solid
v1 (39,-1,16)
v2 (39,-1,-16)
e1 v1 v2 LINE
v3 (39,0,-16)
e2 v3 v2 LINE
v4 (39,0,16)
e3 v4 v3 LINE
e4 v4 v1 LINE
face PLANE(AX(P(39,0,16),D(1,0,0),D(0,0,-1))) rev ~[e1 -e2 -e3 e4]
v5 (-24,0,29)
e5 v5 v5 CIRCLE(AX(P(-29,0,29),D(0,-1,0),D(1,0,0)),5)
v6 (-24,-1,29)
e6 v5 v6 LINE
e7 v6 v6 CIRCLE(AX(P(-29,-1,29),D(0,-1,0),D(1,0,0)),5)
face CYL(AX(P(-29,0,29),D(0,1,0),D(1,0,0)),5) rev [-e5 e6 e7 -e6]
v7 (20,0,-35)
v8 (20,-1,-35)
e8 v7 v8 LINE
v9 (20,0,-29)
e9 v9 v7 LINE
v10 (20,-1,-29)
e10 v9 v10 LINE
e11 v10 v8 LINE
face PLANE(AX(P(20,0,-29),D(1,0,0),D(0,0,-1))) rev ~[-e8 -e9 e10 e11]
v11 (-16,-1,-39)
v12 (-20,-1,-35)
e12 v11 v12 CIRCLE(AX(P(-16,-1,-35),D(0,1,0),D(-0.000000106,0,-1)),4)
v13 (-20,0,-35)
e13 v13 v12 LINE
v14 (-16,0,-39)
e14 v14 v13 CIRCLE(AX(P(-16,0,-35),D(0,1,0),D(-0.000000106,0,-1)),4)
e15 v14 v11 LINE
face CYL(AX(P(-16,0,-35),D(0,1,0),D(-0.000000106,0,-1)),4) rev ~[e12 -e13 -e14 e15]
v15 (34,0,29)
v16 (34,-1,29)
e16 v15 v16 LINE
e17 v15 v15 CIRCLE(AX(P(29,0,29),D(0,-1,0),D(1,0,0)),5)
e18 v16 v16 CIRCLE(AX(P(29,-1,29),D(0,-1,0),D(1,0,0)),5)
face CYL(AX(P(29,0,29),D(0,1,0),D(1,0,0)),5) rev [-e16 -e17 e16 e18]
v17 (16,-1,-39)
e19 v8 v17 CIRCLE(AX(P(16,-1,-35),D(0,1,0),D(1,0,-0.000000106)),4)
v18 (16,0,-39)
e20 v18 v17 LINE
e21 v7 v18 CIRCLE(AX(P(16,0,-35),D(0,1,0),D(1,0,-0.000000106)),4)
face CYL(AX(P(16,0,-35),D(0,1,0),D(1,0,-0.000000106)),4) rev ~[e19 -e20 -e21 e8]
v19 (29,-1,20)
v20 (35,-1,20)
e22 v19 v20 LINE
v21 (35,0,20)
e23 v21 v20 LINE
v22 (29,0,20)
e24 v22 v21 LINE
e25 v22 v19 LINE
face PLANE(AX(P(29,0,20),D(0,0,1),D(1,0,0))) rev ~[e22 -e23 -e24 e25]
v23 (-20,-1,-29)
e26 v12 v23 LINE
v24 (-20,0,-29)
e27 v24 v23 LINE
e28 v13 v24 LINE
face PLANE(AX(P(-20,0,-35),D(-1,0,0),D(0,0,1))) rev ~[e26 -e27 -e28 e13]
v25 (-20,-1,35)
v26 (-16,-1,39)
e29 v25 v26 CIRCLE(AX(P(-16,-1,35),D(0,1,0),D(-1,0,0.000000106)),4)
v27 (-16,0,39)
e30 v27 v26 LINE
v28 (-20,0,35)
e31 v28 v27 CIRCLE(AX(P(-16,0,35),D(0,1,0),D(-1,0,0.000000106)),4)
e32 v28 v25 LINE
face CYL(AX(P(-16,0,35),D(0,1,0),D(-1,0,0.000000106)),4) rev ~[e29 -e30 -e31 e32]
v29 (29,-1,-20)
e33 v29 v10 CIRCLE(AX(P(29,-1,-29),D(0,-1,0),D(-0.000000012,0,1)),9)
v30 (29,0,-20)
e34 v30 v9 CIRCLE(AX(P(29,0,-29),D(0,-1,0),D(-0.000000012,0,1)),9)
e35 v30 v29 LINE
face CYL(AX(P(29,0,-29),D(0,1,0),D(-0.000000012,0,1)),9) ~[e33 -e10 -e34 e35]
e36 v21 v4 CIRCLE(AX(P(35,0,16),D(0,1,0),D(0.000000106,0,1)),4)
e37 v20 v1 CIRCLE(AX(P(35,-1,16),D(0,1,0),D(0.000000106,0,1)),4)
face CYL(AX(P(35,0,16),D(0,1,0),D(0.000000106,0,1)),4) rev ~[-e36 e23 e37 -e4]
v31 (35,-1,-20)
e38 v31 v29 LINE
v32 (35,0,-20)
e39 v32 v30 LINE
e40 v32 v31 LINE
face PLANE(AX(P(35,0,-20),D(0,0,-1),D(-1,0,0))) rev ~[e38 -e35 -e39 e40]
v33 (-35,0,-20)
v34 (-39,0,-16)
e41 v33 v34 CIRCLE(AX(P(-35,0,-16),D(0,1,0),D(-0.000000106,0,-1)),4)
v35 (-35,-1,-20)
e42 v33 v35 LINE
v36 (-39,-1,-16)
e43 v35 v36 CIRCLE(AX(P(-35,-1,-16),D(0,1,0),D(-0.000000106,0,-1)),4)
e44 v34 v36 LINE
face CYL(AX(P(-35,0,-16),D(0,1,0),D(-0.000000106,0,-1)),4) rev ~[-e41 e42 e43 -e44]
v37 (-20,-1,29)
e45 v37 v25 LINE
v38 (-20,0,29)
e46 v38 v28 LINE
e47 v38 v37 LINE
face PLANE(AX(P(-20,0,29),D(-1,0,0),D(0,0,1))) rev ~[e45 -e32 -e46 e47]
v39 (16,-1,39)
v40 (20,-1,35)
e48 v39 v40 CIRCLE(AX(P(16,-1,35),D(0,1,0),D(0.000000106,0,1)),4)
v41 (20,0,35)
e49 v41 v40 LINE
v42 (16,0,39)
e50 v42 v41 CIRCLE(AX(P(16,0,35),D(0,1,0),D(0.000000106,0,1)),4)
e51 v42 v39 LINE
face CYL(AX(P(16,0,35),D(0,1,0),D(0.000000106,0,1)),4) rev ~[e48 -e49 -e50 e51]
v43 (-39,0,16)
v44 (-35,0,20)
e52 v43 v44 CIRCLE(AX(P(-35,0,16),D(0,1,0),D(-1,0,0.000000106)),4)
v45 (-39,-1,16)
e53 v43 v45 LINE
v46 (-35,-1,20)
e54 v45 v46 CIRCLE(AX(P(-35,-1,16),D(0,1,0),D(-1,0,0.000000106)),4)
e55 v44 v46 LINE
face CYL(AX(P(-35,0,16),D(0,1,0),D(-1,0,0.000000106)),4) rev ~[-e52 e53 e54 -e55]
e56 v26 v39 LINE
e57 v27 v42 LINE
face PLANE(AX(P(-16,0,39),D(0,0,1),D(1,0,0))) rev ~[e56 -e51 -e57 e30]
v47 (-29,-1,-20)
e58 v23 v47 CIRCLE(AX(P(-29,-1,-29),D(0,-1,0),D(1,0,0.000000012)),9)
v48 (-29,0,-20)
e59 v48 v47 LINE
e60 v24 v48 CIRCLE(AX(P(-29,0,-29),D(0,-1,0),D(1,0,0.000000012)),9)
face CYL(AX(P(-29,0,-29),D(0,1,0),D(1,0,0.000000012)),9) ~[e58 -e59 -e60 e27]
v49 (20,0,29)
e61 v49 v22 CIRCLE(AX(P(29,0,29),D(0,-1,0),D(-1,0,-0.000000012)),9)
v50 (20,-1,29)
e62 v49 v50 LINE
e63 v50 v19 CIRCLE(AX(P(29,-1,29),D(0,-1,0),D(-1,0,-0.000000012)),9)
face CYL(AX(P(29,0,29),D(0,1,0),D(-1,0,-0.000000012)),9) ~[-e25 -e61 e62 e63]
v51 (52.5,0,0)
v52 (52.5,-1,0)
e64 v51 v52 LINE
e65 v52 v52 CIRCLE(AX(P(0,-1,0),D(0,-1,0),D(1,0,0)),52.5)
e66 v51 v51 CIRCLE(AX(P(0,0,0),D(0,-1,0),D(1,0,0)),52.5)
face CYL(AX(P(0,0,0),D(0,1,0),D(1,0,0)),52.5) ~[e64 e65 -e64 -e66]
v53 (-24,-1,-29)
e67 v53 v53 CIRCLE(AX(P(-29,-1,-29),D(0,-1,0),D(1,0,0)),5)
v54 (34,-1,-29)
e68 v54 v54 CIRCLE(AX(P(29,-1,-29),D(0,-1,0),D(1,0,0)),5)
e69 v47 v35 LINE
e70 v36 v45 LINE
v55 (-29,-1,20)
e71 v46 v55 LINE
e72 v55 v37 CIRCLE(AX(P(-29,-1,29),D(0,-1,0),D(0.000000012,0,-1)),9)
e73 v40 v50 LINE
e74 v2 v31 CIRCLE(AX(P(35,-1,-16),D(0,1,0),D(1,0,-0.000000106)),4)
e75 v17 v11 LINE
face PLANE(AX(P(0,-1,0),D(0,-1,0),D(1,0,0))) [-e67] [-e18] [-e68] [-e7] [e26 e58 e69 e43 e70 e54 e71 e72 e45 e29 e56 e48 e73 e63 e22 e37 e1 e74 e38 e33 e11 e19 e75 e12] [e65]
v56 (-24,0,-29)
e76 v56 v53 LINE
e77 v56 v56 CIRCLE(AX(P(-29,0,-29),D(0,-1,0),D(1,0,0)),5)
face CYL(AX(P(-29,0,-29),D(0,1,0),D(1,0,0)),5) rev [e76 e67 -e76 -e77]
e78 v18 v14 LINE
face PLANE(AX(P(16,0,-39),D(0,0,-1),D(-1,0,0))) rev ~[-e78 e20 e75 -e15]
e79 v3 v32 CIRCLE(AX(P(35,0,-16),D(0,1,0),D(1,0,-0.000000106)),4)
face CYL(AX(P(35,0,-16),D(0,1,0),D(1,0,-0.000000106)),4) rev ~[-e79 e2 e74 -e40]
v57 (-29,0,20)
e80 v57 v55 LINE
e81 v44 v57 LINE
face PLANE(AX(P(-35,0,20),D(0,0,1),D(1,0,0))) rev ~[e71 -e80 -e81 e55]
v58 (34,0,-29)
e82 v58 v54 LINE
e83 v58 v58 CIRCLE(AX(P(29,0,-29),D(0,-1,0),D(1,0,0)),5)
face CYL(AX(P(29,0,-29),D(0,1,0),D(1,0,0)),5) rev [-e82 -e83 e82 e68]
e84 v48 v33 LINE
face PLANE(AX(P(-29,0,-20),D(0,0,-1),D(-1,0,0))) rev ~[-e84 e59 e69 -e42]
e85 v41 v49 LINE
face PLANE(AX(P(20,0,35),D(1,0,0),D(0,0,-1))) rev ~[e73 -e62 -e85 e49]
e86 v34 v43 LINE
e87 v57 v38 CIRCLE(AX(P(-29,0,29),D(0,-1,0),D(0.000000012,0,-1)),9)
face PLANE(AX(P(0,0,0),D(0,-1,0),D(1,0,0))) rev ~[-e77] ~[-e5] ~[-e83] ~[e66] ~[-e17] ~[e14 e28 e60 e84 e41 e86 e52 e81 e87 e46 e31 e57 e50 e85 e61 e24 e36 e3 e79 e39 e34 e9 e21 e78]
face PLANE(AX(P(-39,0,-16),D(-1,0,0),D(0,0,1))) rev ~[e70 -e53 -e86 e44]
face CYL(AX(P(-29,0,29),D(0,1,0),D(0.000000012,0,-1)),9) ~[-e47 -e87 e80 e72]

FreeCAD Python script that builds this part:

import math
import FreeCAD as App
import Part
import Sketcher
from FreeCAD import Vector
Q = App.Units.Quantity

doc = App.newDocument("Part")
params = doc.addObject("Spreadsheet::Sheet", "Params")
for row, (alias, value) in enumerate([
    ("sketch1_diameter", "105 mm"),
    ("sketch1_diameter2", "10 mm"),
    ("sketch1_radius", "4 mm"),
    ("sketch1_radius2", "9 mm"),
    ("sketch1_width", "6 mm"),
    ("pad1_length", "1 mm"),
], start=1):
    params.set(f"A{row}", alias)
    params.set(f"B{row}", "=" + value)
    params.setAlias(f"B{row}", alias)

body = doc.addObject("PartDesign::Body", "Body")

# Sketch on XZ plane
sketch1 = body.newObject("Sketcher::SketchObject", "Sketch")
sketch1.AttachmentSupport = (doc.getObject("XZ_Plane"), [""])
sketch1.MapMode = "FlatFace"
sketch1.addGeometry(Part.Circle(Vector(0, 0, 0), Vector(0, 0, 1), 52.5), False)
sketch1.addGeometry(Part.Circle(Vector(-29, -29, 0), Vector(0, 0, 1), 5), False)
sketch1.addGeometry(Part.Circle(Vector(29, -29, 0), Vector(0, 0, 1), 5), False)
sketch1.addGeometry(Part.Circle(Vector(-29, 29, 0), Vector(0, 0, 1), 5), False)
sketch1.addGeometry(Part.LineSegment(Vector(-39, -16, 0), Vector(-39, 16, 0)), False)
sketch1.addGeometry(Part.ArcOfCircle(Part.Circle(Vector(-35, 16, 0), Vector(0, 0, 1), 4), math.radians(90), math.radians(180)), False)
sketch1.addGeometry(Part.LineSegment(Vector(-35, 20, 0), Vector(-29, 20, 0)), False)
sketch1.addGeometry(Part.ArcOfCircle(Part.Circle(Vector(-29, 29, 0), Vector(0, 0, 1), 9), math.radians(-90), math.radians(0)), False)
sketch1.addGeometry(Part.LineSegment(Vector(-20, 29, 0), Vector(-20, 35, 0)), False)
sketch1.addGeometry(Part.ArcOfCircle(Part.Circle(Vector(-16, 35, 0), Vector(0, 0, 1), 4), math.radians(90), math.radians(180)), False)
sketch1.addGeometry(Part.LineSegment(Vector(-16, 39, 0), Vector(16, 39, 0)), False)
sketch1.addGeometry(Part.ArcOfCircle(Part.Circle(Vector(16, 35, 0), Vector(0, 0, 1), 4), math.radians(0), math.radians(90)), False)
sketch1.addGeometry(Part.LineSegment(Vector(20, 35, 0), Vector(20, 29, 0)), False)
sketch1.addGeometry(Part.ArcOfCircle(Part.Circle(Vector(29, 29, 0), Vector(0, 0, 1), 9), math.radians(-180), math.radians(-90)), False)
sketch1.addGeometry(Part.LineSegment(Vector(29, 20, 0), Vector(35, 20, 0)), False)
sketch1.addGeometry(Part.ArcOfCircle(Part.Circle(Vector(35, 16, 0), Vector(0, 0, 1), 4), math.radians(0), math.radians(90)), False)
sketch1.addGeometry(Part.LineSegment(Vector(39, 16, 0), Vector(39, -16, 0)), False)
sketch1.addGeometry(Part.ArcOfCircle(Part.Circle(Vector(35, -16, 0), Vector(0, 0, 1), 4), math.radians(-90), math.radians(0)), False)
sketch1.addGeometry(Part.LineSegment(Vector(35, -20, 0), Vector(29, -20, 0)), False)
sketch1.addGeometry(Part.ArcOfCircle(Part.Circle(Vector(29, -29, 0), Vector(0, 0, 1), 9), math.radians(90), math.radians(180)), False)
sketch1.addGeometry(Part.LineSegment(Vector(20, -29, 0), Vector(20, -35, 0)), False)
sketch1.addGeometry(Part.ArcOfCircle(Part.Circle(Vector(16, -35, 0), Vector(0, 0, 1), 4), math.radians(-90), math.radians(0)), False)
sketch1.addGeometry(Part.LineSegment(Vector(16, -39, 0), Vector(-16, -39, 0)), False)
sketch1.addGeometry(Part.ArcOfCircle(Part.Circle(Vector(-16, -35, 0), Vector(0, 0, 1), 4), math.radians(-180), math.radians(-90)), False)
sketch1.addGeometry(Part.LineSegment(Vector(-20, -35, 0), Vector(-20, -29, 0)), False)
sketch1.addGeometry(Part.ArcOfCircle(Part.Circle(Vector(-29, -29, 0), Vector(0, 0, 1), 9), math.radians(0), math.radians(90)), False)
sketch1.addGeometry(Part.LineSegment(Vector(-29, -20, 0), Vector(-35, -20, 0)), False)
sketch1.addGeometry(Part.ArcOfCircle(Part.Circle(Vector(-35, -16, 0), Vector(0, 0, 1), 4), math.radians(-180), math.radians(-90)), False)
sketch1.addGeometry(Part.Circle(Vector(29, 29, 0), Vector(0, 0, 1), 5), False)
sketch1.addConstraint(Sketcher.Constraint("Tangent", 4, 2, 5, 2))
sketch1.addConstraint(Sketcher.Constraint("Tangent", 5, 1, 6, 1))
sketch1.addConstraint(Sketcher.Constraint("Tangent", 6, 2, 7, 1))
sketch1.addConstraint(Sketcher.Constraint("Tangent", 7, 2, 8, 1))
sketch1.addConstraint(Sketcher.Constraint("Tangent", 8, 2, 9, 2))
sketch1.addConstraint(Sketcher.Constraint("Tangent", 9, 1, 10, 1))
sketch1.addConstraint(Sketcher.Constraint("Tangent", 10, 2, 11, 2))
sketch1.addConstraint(Sketcher.Constraint("Tangent", 11, 1, 12, 1))
sketch1.addConstraint(Sketcher.Constraint("Tangent", 12, 2, 13, 1))
sketch1.addConstraint(Sketcher.Constraint("Tangent", 13, 2, 14, 1))
sketch1.addConstraint(Sketcher.Constraint("Tangent", 14, 2, 15, 2))
sketch1.addConstraint(Sketcher.Constraint("Tangent", 15, 1, 16, 1))
sketch1.addConstraint(Sketcher.Constraint("Tangent", 16, 2, 17, 2))
sketch1.addConstraint(Sketcher.Constraint("Tangent", 17, 1, 18, 1))
sketch1.addConstraint(Sketcher.Constraint("Tangent", 18, 2, 19, 1))
sketch1.addConstraint(Sketcher.Constraint("Tangent", 19, 2, 20, 1))
sketch1.addConstraint(Sketcher.Constraint("Tangent", 20, 2, 21, 2))
sketch1.addConstraint(Sketcher.Constraint("Tangent", 21, 1, 22, 1))
sketch1.addConstraint(Sketcher.Constraint("Tangent", 22, 2, 23, 2))
sketch1.addConstraint(Sketcher.Constraint("Tangent", 23, 1, 24, 1))
sketch1.addConstraint(Sketcher.Constraint("Tangent", 24, 2, 25, 1))
sketch1.addConstraint(Sketcher.Constraint("Tangent", 25, 2, 26, 1))
sketch1.addConstraint(Sketcher.Constraint("Tangent", 26, 2, 27, 2))
sketch1.addConstraint(Sketcher.Constraint("Tangent", 27, 1, 4, 1))
sketch1.addConstraint(Sketcher.Constraint("Vertical", 4))
sketch1.addConstraint(Sketcher.Constraint("Horizontal", 6))
sketch1.addConstraint(Sketcher.Constraint("Vertical", 8))
sketch1.addConstraint(Sketcher.Constraint("Horizontal", 10))
sketch1.addConstraint(Sketcher.Constraint("Vertical", 12))
sketch1.addConstraint(Sketcher.Constraint("Horizontal", 14))
sketch1.addConstraint(Sketcher.Constraint("Vertical", 16))
sketch1.addConstraint(Sketcher.Constraint("Horizontal", 18))
sketch1.addConstraint(Sketcher.Constraint("Vertical", 20))
sketch1.addConstraint(Sketcher.Constraint("Horizontal", 22))
sketch1.addConstraint(Sketcher.Constraint("Vertical", 24))
sketch1.addConstraint(Sketcher.Constraint("Horizontal", 26))
sketch1.addConstraint(Sketcher.Constraint("Coincident", 0, 3, -1, 1))
sketch1.addConstraint(Sketcher.Constraint("Coincident", 7, 3, 3, 3))
sketch1.addConstraint(Sketcher.Constraint("Coincident", 19, 3, 2, 3))
sketch1.addConstraint(Sketcher.Constraint("Coincident", 25, 3, 1, 3))
sketch1.addConstraint(Sketcher.Constraint("Coincident", 28, 3, 13, 3))
sketch1.addConstraint(Sketcher.Constraint("Equal", 1, 2))
sketch1.addConstraint(Sketcher.Constraint("Equal", 2, 3))
sketch1.addConstraint(Sketcher.Constraint("Equal", 5, 9))
sketch1.addConstraint(Sketcher.Constraint("Equal", 9, 11))
sketch1.addConstraint(Sketcher.Constraint("Equal", 7, 13))
sketch1.addConstraint(Sketcher.Constraint("Equal", 11, 15))
sketch1.addConstraint(Sketcher.Constraint("Equal", 15, 17))
sketch1.addConstraint(Sketcher.Constraint("Equal", 13, 19))
sketch1.addConstraint(Sketcher.Constraint("Equal", 17, 21))
sketch1.addConstraint(Sketcher.Constraint("Equal", 21, 23))
sketch1.addConstraint(Sketcher.Constraint("Equal", 19, 25))
sketch1.addConstraint(Sketcher.Constraint("Equal", 23, 27))
sketch1.addConstraint(Sketcher.Constraint("Equal", 3, 28))
sketch1.addConstraint(Sketcher.Constraint("Symmetric", 2, 3, 3, 3, -1, 1))
sketch1.addConstraint(Sketcher.Constraint("Symmetric", 1, 3, 13, 3, -1, 1))
sketch1.addConstraint(Sketcher.Constraint("Symmetric", 1, 3, 2, 3, -2))
sketch1.addConstraint(Sketcher.Constraint("Equal", 6, 14))
sketch1.addConstraint(Sketcher.Constraint("Equal", 22, 4))
sketch1.addConstraint(Sketcher.Constraint("Equal", 26, 8))
sketch1.addConstraint(Sketcher.Constraint("Equal", 12, 20))
sketch1.addConstraint(Sketcher.Constraint("Diameter", 0, Q("105 mm")))
sketch1.addConstraint(Sketcher.Constraint("Diameter", 1, Q("10 mm")))
sketch1.addConstraint(Sketcher.Constraint("Radius", 5, Q("4 mm")))
sketch1.addConstraint(Sketcher.Constraint("Radius", 7, Q("9 mm")))
sketch1.addConstraint(Sketcher.Constraint("DistanceX", 6, 1, 6, 2, Q("6 mm")))
sketch1.addConstraint(Sketcher.Constraint("DistanceX", 10, 1, 10, 2, Q("32 mm")))
sketch1.setExpression("Constraints[61]", "Params.sketch1_diameter")
sketch1.setExpression("Constraints[62]", "Params.sketch1_diameter2")
sketch1.setExpression("Constraints[63]", "Params.sketch1_radius")
sketch1.setExpression("Constraints[64]", "Params.sketch1_radius2")
sketch1.setExpression("Constraints[65]", "Params.sketch1_width")
pad1 = body.newObject("PartDesign::Pad", "Pad")
pad1.Profile = sketch1
pad1.setExpression("Length", "Params.pad1_length")

doc.recompute()
